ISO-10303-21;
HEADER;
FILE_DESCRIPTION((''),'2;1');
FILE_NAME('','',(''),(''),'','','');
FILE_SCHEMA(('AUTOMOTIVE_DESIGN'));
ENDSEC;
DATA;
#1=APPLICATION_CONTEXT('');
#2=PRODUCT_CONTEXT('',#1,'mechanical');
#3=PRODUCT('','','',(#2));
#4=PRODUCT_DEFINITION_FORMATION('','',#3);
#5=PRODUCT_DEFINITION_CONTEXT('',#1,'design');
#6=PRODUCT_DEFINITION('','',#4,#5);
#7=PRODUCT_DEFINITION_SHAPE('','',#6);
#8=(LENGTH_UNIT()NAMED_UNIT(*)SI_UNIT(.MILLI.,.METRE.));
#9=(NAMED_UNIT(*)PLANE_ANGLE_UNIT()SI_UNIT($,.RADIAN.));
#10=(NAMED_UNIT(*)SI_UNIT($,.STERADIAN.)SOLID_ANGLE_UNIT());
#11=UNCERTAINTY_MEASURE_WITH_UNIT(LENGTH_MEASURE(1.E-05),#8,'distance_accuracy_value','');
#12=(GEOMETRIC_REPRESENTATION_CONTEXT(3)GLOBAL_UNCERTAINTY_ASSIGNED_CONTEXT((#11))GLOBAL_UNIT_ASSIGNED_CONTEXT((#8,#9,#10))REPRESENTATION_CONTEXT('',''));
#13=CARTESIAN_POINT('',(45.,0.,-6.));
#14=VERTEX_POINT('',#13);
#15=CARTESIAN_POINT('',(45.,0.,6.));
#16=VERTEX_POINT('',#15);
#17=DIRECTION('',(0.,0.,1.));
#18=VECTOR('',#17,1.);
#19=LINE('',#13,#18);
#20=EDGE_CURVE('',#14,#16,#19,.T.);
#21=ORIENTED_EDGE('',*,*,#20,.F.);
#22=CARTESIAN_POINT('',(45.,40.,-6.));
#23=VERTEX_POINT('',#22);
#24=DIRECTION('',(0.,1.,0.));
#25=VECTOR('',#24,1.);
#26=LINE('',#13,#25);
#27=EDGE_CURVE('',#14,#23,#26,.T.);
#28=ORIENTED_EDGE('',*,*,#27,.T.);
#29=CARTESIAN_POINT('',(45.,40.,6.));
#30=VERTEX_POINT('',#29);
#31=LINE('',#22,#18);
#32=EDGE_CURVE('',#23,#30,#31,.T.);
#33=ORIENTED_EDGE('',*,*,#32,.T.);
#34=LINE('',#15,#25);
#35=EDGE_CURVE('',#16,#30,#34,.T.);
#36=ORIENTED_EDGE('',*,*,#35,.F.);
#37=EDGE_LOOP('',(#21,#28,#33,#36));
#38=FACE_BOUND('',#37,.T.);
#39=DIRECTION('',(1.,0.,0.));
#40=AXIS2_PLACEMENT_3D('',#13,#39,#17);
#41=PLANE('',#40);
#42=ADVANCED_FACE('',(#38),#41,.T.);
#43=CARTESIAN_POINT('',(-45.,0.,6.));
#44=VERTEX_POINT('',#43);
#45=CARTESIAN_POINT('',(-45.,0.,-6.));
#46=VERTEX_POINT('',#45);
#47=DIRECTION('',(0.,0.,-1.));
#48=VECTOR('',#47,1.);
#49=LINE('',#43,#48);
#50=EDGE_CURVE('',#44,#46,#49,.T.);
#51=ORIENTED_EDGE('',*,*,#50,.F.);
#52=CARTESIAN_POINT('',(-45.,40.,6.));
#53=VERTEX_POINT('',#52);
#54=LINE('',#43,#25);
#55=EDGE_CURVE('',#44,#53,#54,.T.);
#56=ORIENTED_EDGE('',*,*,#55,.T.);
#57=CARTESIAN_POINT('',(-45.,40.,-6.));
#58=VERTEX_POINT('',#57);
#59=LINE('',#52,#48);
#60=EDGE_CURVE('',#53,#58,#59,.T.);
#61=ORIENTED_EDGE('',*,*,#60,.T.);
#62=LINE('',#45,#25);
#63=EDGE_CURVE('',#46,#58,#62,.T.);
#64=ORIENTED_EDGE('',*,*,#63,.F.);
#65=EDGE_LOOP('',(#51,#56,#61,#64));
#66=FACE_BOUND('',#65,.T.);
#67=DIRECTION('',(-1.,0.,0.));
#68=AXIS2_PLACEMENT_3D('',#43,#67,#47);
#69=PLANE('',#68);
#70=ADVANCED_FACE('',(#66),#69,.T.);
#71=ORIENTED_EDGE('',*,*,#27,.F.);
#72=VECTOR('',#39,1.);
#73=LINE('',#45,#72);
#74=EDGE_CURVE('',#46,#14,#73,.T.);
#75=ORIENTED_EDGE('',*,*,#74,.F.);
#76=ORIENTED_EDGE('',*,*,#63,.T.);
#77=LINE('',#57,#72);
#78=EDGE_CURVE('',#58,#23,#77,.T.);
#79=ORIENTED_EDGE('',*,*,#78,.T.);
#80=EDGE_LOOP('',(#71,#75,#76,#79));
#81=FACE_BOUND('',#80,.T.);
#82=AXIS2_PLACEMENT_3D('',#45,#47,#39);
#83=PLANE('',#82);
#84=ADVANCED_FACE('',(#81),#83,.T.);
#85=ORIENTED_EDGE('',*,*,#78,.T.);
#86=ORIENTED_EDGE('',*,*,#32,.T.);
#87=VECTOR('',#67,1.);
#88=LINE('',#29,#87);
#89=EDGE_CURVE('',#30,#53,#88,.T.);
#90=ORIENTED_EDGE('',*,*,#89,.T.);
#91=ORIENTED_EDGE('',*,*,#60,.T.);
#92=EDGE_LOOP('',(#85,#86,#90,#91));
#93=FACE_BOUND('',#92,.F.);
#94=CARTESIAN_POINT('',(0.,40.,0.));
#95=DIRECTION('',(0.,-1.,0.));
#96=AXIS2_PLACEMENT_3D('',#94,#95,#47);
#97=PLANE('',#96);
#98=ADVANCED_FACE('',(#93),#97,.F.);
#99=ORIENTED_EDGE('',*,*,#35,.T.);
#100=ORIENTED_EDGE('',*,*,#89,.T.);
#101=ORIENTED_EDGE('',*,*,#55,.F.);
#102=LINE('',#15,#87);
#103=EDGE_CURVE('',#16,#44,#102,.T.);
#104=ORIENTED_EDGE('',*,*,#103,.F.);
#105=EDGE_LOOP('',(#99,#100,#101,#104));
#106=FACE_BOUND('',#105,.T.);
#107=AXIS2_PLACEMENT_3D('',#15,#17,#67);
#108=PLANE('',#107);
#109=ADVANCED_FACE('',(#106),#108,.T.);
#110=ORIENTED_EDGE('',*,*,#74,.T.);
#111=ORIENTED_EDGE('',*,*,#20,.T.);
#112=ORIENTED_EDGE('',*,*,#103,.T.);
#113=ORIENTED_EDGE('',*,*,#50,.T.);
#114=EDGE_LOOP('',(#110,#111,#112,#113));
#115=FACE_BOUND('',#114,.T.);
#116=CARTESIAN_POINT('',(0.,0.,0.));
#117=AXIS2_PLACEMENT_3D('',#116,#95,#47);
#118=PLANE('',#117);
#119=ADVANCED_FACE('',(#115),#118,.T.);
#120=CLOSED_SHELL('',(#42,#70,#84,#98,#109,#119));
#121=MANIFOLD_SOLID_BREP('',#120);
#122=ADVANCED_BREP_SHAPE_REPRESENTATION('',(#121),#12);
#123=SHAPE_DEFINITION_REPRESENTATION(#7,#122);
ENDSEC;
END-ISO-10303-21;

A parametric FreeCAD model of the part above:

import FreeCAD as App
import Part
import Sketcher

V = App.Vector
Q = App.Units.Quantity


def add_polygon(sketch, points):
    """Adds a closed chain of lines whose ends are joined by coincident constraints."""
    first, n = sketch.GeometryCount, len(points)
    for a, b in zip(points, points[1:] + points[:1]):
        sketch.addGeometry(Part.LineSegment(App.Vector(*a, 0), App.Vector(*b, 0)), False)
    for i in range(n):
        sketch.addConstraint(Sketcher.Constraint("Coincident", first + i, 2, first + (i + 1) % n, 1))

doc = App.newDocument("Part")
body = doc.addObject("PartDesign::Body", "Body")

# Sketch on XZ plane
sketch1 = doc.addObject("Sketcher::SketchObject", "Sketch")
body.addObject(sketch1)
sketch1.AttachmentSupport = (doc.XZ_Plane, [""])
sketch1.MapMode = "FlatFace"
add_polygon(sketch1, [(45, -6), (45, 6), (-45, 6), (-45, -6)])  # lines 0-3
sketch1.addConstraint([
    Sketcher.Constraint("Vertical", 0),
    Sketcher.Constraint("Horizontal", 1),
    Sketcher.Constraint("Vertical", 2),
    Sketcher.Constraint("Horizontal", 3),
    Sketcher.Constraint("Symmetric", 0, 2, 2, 2, -1, 1),
    Sketcher.Constraint("DistanceX", 1, 2, 1, 1, Q("90 mm")),
    Sketcher.Constraint("DistanceY", 0, 1, 0, 2, Q("12 mm")),
])
pad1 = doc.addObject("PartDesign::Pad", "Pad")
body.addObject(pad1)
pad1.Profile = sketch1
pad1.Length = 40
pad1.Reversed = True

doc.recompute()
